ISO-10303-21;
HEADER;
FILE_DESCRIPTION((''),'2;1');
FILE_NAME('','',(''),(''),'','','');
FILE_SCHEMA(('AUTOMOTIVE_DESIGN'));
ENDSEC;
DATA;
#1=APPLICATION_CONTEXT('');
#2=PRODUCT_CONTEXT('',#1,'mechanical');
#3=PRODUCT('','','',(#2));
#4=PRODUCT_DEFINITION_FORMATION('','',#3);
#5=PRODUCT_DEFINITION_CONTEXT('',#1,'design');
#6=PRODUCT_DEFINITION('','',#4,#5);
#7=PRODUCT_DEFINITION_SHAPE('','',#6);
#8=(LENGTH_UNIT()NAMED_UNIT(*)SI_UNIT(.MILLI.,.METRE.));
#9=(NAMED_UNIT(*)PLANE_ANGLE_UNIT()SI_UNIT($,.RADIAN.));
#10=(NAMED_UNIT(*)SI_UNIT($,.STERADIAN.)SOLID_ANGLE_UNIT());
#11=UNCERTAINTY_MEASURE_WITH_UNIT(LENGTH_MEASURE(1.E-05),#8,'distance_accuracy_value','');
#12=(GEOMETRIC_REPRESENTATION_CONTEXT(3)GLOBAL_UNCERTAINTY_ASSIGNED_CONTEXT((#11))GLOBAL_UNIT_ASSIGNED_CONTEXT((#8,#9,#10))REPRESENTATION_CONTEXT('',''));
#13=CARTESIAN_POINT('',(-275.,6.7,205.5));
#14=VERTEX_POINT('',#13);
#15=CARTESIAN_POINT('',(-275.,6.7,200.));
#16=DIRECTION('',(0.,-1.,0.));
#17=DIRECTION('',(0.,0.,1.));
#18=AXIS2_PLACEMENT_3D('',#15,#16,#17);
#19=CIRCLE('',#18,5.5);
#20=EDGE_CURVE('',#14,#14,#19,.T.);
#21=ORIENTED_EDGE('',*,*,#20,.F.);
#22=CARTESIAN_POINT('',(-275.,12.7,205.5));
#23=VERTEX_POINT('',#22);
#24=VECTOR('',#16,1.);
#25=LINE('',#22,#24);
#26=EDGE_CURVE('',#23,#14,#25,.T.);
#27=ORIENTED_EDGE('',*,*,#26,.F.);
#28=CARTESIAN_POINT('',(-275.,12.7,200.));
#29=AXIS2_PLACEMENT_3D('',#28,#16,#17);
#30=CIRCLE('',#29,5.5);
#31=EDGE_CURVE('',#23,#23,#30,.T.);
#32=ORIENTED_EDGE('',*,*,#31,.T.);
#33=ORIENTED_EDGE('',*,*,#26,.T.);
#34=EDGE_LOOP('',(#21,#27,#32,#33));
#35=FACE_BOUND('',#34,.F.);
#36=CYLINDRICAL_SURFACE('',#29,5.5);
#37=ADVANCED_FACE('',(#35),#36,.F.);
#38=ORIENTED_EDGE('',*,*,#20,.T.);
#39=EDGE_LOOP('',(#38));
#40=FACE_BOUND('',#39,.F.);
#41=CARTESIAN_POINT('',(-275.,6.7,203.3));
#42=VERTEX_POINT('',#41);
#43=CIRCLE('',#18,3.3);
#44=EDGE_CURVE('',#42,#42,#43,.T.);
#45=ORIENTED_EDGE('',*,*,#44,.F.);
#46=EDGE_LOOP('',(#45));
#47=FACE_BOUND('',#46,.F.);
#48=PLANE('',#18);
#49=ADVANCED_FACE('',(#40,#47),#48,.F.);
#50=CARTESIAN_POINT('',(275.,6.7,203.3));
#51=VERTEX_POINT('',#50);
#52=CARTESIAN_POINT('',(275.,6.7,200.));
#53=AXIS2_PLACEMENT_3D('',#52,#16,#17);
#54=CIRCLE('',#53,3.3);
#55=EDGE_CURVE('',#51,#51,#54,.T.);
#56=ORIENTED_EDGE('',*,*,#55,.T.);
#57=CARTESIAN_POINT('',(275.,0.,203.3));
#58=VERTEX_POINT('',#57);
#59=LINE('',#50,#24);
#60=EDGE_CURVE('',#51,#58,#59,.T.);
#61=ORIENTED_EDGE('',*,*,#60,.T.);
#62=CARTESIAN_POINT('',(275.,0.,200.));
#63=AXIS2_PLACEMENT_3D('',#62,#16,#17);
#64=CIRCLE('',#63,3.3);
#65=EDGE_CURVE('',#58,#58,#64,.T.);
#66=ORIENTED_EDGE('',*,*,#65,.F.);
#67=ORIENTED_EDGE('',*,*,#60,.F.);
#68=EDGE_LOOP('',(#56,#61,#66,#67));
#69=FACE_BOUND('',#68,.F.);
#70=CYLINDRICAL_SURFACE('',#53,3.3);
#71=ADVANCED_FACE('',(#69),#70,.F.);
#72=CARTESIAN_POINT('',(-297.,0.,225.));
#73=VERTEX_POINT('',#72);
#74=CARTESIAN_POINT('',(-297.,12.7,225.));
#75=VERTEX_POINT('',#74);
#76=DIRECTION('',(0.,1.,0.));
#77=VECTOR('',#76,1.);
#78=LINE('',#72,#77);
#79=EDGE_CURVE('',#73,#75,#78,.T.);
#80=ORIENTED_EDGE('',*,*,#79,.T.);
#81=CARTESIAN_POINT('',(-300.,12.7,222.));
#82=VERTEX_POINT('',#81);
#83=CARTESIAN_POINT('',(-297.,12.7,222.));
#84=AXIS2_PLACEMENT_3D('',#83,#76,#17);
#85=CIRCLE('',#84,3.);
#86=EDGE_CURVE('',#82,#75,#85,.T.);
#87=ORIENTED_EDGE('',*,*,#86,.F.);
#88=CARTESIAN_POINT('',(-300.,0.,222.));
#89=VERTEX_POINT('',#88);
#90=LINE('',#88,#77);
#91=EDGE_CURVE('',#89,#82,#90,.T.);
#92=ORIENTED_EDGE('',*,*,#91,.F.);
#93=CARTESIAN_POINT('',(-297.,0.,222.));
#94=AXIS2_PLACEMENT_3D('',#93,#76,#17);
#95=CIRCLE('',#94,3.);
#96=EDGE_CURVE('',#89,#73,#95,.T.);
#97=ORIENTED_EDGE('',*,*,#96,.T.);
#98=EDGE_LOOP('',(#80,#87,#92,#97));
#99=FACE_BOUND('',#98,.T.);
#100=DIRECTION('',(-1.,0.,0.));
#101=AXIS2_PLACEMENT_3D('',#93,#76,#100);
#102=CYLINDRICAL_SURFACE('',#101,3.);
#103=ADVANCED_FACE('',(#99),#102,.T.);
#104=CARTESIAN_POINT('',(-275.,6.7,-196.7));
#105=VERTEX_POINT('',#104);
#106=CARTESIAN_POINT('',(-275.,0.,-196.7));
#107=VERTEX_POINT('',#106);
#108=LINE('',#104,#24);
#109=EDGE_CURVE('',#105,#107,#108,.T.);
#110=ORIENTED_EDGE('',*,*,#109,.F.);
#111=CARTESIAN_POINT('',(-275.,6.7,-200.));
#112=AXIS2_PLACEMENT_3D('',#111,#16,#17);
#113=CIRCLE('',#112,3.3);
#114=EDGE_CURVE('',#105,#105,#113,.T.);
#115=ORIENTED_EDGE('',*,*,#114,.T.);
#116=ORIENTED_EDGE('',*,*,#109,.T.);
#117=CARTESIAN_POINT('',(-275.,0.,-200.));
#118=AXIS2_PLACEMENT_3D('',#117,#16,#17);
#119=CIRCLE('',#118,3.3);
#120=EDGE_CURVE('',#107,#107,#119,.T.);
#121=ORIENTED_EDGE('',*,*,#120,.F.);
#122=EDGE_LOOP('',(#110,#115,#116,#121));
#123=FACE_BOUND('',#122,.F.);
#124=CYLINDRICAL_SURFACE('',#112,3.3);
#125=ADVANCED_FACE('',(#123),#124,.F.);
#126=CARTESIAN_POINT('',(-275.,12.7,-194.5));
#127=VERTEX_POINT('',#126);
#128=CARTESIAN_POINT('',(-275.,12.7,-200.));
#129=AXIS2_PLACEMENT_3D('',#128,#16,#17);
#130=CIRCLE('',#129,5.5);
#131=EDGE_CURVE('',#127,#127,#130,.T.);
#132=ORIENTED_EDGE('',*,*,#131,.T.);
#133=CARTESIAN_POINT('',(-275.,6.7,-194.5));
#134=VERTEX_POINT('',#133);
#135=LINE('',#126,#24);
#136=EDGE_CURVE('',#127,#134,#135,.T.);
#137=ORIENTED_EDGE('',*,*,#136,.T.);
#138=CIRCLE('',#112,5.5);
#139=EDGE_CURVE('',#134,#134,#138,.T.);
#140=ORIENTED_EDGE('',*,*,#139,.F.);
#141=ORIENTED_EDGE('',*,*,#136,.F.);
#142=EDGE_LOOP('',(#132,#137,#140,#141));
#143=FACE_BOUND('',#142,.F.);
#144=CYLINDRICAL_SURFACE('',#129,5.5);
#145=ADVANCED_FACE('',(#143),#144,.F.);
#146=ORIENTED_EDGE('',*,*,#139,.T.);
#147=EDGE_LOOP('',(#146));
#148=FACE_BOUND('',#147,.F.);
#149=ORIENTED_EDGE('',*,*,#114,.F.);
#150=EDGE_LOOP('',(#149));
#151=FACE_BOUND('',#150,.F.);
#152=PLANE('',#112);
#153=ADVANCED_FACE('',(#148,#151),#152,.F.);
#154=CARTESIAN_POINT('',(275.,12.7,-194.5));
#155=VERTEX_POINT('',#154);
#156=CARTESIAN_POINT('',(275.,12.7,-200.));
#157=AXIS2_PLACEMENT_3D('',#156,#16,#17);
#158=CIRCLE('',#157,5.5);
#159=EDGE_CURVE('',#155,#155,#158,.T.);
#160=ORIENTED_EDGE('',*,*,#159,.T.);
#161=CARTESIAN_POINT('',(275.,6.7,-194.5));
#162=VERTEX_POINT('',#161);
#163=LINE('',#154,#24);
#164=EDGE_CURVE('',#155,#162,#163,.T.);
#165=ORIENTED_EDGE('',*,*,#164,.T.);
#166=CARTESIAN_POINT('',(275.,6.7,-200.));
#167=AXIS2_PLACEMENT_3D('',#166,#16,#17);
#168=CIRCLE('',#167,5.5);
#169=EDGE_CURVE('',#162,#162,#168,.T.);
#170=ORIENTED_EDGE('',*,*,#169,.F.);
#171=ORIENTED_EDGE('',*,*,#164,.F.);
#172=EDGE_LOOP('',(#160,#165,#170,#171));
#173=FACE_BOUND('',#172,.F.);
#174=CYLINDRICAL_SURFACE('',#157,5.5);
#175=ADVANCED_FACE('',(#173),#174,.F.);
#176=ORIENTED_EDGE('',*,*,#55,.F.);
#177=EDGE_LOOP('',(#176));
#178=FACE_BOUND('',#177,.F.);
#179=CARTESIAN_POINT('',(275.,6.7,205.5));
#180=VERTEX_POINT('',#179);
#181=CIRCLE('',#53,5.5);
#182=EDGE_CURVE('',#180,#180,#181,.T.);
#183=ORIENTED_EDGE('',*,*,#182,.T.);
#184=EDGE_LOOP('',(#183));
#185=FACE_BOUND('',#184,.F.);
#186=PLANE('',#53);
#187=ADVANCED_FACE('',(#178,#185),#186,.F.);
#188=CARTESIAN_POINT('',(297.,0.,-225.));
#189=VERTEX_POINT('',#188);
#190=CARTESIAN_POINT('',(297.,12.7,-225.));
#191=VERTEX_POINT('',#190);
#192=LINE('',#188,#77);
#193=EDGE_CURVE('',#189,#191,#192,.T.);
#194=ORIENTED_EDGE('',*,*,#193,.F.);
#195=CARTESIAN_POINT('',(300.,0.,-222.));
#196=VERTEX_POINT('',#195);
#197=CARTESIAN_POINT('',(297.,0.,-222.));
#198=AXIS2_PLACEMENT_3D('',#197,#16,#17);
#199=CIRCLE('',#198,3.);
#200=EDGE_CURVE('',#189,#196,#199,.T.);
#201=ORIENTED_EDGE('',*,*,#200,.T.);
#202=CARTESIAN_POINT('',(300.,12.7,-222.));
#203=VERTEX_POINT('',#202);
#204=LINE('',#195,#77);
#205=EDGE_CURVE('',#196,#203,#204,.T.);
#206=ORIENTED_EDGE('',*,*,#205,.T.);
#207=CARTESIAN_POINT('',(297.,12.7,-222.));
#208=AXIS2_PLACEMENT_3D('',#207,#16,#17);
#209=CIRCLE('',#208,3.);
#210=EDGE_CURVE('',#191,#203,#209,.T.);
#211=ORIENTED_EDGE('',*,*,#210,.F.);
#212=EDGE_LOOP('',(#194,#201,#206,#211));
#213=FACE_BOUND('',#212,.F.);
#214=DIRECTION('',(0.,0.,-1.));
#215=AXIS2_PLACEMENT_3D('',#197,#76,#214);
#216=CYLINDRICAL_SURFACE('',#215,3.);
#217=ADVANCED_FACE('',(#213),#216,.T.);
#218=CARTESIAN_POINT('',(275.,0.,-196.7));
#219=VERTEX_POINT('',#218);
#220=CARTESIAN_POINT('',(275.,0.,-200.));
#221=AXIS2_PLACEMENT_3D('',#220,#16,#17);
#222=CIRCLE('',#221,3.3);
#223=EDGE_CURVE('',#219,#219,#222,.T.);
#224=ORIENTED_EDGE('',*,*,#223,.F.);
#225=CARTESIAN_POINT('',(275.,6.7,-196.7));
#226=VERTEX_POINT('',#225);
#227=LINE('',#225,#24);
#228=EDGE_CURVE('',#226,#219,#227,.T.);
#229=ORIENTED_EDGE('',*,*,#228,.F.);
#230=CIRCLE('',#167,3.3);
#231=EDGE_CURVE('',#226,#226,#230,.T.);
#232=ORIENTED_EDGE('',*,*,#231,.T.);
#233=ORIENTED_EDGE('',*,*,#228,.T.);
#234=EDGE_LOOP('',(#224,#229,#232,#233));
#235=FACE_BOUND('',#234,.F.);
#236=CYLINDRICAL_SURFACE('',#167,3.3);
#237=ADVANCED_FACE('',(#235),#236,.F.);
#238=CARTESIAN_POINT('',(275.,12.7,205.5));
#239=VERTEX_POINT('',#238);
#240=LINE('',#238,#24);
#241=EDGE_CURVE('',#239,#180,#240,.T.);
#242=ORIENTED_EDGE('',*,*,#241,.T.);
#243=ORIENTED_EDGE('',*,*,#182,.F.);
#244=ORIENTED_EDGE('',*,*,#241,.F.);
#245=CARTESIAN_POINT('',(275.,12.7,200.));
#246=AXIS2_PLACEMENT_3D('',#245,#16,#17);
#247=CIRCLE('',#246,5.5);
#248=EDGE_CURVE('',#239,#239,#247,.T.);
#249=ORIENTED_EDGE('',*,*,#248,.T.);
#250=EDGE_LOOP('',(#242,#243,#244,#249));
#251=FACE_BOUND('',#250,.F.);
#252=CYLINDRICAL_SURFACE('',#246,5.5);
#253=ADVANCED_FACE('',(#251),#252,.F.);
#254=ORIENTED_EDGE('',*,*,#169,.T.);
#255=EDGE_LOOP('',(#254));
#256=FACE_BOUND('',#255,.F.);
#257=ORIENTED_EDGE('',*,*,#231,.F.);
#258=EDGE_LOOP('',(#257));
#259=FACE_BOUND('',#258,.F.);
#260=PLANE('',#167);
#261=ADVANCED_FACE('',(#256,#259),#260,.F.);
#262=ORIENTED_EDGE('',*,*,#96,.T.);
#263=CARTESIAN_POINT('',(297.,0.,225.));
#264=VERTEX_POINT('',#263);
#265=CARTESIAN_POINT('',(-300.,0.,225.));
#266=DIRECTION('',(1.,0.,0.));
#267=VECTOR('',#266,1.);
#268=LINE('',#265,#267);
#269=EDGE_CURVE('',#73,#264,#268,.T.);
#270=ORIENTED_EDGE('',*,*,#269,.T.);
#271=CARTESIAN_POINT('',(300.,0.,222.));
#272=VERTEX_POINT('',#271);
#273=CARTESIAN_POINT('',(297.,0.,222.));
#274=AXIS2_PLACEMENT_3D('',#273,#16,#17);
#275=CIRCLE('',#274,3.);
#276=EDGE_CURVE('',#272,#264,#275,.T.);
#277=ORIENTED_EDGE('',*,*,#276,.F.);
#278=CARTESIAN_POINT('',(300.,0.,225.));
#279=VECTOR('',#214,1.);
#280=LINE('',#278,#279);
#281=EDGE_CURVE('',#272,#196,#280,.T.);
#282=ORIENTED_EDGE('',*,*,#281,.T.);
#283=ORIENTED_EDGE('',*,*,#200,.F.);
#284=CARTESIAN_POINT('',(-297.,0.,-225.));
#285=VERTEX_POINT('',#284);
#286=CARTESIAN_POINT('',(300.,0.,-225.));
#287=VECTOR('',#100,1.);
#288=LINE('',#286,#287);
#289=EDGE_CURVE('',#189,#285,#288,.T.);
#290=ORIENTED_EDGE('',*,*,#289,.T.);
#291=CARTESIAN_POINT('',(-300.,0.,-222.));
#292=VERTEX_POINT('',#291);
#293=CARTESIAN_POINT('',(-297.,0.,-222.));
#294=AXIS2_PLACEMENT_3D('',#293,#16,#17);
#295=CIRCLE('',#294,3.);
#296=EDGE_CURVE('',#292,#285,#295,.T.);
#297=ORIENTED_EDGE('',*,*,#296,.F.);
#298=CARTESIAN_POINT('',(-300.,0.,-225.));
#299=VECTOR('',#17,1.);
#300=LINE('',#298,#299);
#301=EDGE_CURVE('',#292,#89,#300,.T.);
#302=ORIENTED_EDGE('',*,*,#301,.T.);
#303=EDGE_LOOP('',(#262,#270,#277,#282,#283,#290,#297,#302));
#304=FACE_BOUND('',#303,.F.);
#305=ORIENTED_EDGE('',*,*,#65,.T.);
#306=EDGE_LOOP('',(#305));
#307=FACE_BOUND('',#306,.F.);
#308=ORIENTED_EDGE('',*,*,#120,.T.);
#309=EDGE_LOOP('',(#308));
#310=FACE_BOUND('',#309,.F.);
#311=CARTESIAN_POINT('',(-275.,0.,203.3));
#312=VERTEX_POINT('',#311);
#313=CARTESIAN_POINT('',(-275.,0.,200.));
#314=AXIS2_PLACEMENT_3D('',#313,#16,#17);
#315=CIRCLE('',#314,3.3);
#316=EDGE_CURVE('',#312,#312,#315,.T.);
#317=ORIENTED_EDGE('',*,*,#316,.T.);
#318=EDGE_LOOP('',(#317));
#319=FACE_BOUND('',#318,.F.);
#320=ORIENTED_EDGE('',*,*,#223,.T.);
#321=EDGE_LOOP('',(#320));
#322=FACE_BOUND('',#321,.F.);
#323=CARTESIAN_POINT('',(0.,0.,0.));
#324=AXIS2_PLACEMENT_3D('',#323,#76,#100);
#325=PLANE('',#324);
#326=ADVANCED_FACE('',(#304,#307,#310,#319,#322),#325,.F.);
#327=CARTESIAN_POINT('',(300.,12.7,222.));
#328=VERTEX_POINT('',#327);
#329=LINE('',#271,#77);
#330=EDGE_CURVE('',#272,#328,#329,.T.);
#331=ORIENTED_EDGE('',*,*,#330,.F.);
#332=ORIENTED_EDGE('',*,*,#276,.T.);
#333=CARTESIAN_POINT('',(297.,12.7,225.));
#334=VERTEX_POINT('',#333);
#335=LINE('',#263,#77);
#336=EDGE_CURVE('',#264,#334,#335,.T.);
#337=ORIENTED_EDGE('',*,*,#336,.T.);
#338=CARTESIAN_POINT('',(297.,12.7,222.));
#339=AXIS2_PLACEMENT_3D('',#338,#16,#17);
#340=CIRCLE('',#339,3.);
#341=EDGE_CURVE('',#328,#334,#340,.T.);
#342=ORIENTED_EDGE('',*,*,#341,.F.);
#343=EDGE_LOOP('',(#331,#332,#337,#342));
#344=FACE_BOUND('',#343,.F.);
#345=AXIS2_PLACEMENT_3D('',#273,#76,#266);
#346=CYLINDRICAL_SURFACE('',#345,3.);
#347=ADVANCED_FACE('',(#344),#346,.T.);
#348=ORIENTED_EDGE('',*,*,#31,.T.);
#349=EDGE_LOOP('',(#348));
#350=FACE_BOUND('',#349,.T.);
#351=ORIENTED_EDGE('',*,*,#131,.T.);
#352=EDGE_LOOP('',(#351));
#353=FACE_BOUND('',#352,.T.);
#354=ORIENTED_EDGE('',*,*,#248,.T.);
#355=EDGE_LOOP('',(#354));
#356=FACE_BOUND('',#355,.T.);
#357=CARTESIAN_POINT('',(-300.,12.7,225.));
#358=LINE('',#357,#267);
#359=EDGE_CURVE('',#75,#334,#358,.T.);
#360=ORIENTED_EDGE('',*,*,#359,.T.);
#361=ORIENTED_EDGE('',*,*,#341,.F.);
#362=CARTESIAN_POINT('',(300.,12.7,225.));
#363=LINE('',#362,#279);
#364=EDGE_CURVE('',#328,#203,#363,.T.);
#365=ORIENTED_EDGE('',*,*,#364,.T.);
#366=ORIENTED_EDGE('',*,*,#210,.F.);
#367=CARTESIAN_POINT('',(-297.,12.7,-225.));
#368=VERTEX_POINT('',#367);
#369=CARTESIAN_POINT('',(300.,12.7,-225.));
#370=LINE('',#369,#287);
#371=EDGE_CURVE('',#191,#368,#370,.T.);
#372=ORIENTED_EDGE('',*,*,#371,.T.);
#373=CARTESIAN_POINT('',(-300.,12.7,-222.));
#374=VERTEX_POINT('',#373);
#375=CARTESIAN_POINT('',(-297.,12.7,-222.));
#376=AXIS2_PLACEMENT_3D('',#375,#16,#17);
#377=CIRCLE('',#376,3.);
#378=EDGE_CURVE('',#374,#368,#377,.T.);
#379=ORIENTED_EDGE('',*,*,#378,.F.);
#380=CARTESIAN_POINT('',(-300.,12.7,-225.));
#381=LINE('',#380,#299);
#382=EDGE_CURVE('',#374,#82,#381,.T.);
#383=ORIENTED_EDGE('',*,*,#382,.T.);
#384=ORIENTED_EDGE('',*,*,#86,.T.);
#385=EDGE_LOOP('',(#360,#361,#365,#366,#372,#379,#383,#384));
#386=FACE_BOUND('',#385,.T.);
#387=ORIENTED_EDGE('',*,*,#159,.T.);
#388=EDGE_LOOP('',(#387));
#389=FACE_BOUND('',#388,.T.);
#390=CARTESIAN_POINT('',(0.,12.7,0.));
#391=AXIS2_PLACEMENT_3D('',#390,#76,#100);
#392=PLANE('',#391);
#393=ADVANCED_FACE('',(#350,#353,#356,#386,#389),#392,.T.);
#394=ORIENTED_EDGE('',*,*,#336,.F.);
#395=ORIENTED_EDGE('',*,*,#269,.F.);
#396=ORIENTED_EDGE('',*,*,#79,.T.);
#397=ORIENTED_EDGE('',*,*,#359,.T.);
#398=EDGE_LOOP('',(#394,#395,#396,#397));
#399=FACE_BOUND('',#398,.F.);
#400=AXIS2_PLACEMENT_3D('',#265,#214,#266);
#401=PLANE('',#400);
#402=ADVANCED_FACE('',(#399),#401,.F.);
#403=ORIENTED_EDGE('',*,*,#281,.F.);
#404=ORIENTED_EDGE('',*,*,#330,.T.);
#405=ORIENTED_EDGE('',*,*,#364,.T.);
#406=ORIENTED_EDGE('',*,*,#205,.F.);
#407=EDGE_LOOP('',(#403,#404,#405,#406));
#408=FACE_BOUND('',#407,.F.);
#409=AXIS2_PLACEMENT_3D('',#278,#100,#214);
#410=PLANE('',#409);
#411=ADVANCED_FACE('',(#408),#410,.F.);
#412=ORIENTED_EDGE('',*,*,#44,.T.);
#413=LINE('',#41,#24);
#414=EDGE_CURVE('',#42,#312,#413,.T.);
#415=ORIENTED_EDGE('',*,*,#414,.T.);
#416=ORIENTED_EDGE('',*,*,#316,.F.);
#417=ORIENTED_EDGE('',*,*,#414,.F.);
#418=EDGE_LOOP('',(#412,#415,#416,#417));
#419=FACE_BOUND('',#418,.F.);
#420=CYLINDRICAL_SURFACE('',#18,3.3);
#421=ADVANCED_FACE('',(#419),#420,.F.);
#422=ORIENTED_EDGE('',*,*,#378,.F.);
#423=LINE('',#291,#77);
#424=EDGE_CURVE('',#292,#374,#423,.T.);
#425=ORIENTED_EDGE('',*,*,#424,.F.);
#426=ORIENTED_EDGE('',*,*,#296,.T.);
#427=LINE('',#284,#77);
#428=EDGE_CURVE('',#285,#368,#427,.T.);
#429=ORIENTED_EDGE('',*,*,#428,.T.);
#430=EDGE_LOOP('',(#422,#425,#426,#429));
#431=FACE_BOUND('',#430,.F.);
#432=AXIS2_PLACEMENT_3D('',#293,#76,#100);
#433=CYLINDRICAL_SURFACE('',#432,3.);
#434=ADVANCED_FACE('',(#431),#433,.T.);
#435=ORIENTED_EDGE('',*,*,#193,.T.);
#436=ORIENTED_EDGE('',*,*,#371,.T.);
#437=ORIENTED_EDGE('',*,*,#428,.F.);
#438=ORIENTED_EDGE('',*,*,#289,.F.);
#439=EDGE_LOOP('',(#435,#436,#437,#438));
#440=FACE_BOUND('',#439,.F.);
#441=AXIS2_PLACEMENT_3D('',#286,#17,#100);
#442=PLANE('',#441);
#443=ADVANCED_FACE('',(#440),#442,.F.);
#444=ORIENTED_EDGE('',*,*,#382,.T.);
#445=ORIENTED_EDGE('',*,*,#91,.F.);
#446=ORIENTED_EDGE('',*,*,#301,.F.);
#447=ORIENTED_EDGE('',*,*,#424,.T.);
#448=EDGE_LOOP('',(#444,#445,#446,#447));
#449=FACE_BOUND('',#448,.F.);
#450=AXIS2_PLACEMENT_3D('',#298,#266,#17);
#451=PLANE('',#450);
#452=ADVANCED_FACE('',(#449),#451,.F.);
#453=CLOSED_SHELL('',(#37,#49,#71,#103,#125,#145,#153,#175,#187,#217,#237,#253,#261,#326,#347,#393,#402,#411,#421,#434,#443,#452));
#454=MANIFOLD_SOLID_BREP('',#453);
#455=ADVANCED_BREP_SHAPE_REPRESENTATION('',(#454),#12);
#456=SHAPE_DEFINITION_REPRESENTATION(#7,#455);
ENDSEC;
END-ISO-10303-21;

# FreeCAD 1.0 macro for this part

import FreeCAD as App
import Part
import Sketcher
Q = App.Units.Quantity


def edges_at(feature, points):
    """Names of the edges that pass closest to the given points."""
    edges = feature.Shape.Edges
    near = lambda p: min(range(len(edges)), key=lambda i: edges[i].distToShape(Part.Vertex(*p))[0])
    return sorted({f"Edge{near(p) + 1}" for p in points})


def add_polygon(sketch, points):
    """Adds a closed chain of lines whose ends are joined by coincident constraints."""
    first, n = sketch.GeometryCount, len(points)
    for a, b in zip(points, points[1:] + points[:1]):
        sketch.addGeometry(Part.LineSegment(App.Vector(*a, 0), App.Vector(*b, 0)), False)
    for i in range(n):
        sketch.addConstraint(Sketcher.Constraint("Coincident", first + i, 2, first + (i + 1) % n, 1))

doc = App.newDocument("Part")
body = doc.addObject("PartDesign::Body", "Body")

sketch1 = body.newObject("Sketcher::SketchObject", "Sketch")
sketch1.AttachmentSupport = (doc.getObject("XZ_Plane"), [""])
sketch1.MapMode = "FlatFace"
add_polygon(sketch1, [(-300, -225), (-300, 225), (300, 225), (300, -225)])
sketch1.addConstraint([
    Sketcher.Constraint("Vertical", 0),
    Sketcher.Constraint("Horizontal", 1),
    Sketcher.Constraint("Vertical", 2),
    Sketcher.Constraint("Horizontal", 3),
    Sketcher.Constraint("Symmetric", 0, 2, 2, 2, -1, 1),
    Sketcher.Constraint("DistanceX", 1, 1, 1, 2, Q("600 mm")),
    Sketcher.Constraint("DistanceY", 0, 1, 0, 2, Q("450 mm")),
])
pad1 = body.newObject("PartDesign::Pad", "Pad")
pad1.Profile = sketch1
pad1.Length = 12.7
pad1.Reversed = True
doc.recompute()

fillet = body.newObject("PartDesign::Fillet", "Fillet")
fillet.Base = (pad1, edges_at(pad1, [
    (300, 6.35, 225),
    (300, 6.35, -225),
    (-300, 6.35, 225),
    (-300, 6.35, -225),
]))
fillet.Radius = 3

sketch2 = body.newObject("Sketcher::SketchObject", "Sketch001")
sketch2.AttachmentSupport = (doc.getObject("XZ_Plane"), [""])
sketch2.MapMode = "FlatFace"
sketch2.AttachmentOffset = App.Placement(App.Vector(0, 0, -12.7), App.Rotation())
sketch2.addGeometry([
    Part.Circle(App.Vector(-275, -200, 0), App.Vector(0, 0, 1), 3.3),
    Part.Circle(App.Vector(275, -200, 0), App.Vector(0, 0, 1), 3.3),
    Part.Circle(App.Vector(275, 200, 0), App.Vector(0, 0, 1), 3.3),
    Part.Circle(App.Vector(-275, 200, 0), App.Vector(0, 0, 1), 3.3),
], False)
sketch2.addConstraint([
    Sketcher.Constraint("Equal", 0, 1),
    Sketcher.Constraint("Equal", 1, 2),
    Sketcher.Constraint("Equal", 2, 3),
    Sketcher.Constraint("Symmetric", 0, 3, 2, 3, -1, 1),
    Sketcher.Constraint("Symmetric", 1, 3, 3, 3, -1, 1),
    Sketcher.Constraint("Symmetric", 0, 3, 1, 3, -2),
    Sketcher.Constraint("Diameter", 0, Q("6.6 mm")),
    Sketcher.Constraint("DistanceX", 0, 3, -1, 1, Q("275 mm")),
    Sketcher.Constraint("DistanceY", 0, 3, -1, 1, Q("200 mm")),
])
doc.recompute()
hole = body.newObject("PartDesign::Hole", "Hole")
hole.Profile = sketch2
hole.ThreadType = "None"
hole.Diameter = 6.6
hole.DepthType = "ThroughAll"
hole.HoleCutType = "Counterbore"
hole.HoleCutDiameter = 11
hole.HoleCutDepth = 6
hole.Reversed = True

doc.recompute()
